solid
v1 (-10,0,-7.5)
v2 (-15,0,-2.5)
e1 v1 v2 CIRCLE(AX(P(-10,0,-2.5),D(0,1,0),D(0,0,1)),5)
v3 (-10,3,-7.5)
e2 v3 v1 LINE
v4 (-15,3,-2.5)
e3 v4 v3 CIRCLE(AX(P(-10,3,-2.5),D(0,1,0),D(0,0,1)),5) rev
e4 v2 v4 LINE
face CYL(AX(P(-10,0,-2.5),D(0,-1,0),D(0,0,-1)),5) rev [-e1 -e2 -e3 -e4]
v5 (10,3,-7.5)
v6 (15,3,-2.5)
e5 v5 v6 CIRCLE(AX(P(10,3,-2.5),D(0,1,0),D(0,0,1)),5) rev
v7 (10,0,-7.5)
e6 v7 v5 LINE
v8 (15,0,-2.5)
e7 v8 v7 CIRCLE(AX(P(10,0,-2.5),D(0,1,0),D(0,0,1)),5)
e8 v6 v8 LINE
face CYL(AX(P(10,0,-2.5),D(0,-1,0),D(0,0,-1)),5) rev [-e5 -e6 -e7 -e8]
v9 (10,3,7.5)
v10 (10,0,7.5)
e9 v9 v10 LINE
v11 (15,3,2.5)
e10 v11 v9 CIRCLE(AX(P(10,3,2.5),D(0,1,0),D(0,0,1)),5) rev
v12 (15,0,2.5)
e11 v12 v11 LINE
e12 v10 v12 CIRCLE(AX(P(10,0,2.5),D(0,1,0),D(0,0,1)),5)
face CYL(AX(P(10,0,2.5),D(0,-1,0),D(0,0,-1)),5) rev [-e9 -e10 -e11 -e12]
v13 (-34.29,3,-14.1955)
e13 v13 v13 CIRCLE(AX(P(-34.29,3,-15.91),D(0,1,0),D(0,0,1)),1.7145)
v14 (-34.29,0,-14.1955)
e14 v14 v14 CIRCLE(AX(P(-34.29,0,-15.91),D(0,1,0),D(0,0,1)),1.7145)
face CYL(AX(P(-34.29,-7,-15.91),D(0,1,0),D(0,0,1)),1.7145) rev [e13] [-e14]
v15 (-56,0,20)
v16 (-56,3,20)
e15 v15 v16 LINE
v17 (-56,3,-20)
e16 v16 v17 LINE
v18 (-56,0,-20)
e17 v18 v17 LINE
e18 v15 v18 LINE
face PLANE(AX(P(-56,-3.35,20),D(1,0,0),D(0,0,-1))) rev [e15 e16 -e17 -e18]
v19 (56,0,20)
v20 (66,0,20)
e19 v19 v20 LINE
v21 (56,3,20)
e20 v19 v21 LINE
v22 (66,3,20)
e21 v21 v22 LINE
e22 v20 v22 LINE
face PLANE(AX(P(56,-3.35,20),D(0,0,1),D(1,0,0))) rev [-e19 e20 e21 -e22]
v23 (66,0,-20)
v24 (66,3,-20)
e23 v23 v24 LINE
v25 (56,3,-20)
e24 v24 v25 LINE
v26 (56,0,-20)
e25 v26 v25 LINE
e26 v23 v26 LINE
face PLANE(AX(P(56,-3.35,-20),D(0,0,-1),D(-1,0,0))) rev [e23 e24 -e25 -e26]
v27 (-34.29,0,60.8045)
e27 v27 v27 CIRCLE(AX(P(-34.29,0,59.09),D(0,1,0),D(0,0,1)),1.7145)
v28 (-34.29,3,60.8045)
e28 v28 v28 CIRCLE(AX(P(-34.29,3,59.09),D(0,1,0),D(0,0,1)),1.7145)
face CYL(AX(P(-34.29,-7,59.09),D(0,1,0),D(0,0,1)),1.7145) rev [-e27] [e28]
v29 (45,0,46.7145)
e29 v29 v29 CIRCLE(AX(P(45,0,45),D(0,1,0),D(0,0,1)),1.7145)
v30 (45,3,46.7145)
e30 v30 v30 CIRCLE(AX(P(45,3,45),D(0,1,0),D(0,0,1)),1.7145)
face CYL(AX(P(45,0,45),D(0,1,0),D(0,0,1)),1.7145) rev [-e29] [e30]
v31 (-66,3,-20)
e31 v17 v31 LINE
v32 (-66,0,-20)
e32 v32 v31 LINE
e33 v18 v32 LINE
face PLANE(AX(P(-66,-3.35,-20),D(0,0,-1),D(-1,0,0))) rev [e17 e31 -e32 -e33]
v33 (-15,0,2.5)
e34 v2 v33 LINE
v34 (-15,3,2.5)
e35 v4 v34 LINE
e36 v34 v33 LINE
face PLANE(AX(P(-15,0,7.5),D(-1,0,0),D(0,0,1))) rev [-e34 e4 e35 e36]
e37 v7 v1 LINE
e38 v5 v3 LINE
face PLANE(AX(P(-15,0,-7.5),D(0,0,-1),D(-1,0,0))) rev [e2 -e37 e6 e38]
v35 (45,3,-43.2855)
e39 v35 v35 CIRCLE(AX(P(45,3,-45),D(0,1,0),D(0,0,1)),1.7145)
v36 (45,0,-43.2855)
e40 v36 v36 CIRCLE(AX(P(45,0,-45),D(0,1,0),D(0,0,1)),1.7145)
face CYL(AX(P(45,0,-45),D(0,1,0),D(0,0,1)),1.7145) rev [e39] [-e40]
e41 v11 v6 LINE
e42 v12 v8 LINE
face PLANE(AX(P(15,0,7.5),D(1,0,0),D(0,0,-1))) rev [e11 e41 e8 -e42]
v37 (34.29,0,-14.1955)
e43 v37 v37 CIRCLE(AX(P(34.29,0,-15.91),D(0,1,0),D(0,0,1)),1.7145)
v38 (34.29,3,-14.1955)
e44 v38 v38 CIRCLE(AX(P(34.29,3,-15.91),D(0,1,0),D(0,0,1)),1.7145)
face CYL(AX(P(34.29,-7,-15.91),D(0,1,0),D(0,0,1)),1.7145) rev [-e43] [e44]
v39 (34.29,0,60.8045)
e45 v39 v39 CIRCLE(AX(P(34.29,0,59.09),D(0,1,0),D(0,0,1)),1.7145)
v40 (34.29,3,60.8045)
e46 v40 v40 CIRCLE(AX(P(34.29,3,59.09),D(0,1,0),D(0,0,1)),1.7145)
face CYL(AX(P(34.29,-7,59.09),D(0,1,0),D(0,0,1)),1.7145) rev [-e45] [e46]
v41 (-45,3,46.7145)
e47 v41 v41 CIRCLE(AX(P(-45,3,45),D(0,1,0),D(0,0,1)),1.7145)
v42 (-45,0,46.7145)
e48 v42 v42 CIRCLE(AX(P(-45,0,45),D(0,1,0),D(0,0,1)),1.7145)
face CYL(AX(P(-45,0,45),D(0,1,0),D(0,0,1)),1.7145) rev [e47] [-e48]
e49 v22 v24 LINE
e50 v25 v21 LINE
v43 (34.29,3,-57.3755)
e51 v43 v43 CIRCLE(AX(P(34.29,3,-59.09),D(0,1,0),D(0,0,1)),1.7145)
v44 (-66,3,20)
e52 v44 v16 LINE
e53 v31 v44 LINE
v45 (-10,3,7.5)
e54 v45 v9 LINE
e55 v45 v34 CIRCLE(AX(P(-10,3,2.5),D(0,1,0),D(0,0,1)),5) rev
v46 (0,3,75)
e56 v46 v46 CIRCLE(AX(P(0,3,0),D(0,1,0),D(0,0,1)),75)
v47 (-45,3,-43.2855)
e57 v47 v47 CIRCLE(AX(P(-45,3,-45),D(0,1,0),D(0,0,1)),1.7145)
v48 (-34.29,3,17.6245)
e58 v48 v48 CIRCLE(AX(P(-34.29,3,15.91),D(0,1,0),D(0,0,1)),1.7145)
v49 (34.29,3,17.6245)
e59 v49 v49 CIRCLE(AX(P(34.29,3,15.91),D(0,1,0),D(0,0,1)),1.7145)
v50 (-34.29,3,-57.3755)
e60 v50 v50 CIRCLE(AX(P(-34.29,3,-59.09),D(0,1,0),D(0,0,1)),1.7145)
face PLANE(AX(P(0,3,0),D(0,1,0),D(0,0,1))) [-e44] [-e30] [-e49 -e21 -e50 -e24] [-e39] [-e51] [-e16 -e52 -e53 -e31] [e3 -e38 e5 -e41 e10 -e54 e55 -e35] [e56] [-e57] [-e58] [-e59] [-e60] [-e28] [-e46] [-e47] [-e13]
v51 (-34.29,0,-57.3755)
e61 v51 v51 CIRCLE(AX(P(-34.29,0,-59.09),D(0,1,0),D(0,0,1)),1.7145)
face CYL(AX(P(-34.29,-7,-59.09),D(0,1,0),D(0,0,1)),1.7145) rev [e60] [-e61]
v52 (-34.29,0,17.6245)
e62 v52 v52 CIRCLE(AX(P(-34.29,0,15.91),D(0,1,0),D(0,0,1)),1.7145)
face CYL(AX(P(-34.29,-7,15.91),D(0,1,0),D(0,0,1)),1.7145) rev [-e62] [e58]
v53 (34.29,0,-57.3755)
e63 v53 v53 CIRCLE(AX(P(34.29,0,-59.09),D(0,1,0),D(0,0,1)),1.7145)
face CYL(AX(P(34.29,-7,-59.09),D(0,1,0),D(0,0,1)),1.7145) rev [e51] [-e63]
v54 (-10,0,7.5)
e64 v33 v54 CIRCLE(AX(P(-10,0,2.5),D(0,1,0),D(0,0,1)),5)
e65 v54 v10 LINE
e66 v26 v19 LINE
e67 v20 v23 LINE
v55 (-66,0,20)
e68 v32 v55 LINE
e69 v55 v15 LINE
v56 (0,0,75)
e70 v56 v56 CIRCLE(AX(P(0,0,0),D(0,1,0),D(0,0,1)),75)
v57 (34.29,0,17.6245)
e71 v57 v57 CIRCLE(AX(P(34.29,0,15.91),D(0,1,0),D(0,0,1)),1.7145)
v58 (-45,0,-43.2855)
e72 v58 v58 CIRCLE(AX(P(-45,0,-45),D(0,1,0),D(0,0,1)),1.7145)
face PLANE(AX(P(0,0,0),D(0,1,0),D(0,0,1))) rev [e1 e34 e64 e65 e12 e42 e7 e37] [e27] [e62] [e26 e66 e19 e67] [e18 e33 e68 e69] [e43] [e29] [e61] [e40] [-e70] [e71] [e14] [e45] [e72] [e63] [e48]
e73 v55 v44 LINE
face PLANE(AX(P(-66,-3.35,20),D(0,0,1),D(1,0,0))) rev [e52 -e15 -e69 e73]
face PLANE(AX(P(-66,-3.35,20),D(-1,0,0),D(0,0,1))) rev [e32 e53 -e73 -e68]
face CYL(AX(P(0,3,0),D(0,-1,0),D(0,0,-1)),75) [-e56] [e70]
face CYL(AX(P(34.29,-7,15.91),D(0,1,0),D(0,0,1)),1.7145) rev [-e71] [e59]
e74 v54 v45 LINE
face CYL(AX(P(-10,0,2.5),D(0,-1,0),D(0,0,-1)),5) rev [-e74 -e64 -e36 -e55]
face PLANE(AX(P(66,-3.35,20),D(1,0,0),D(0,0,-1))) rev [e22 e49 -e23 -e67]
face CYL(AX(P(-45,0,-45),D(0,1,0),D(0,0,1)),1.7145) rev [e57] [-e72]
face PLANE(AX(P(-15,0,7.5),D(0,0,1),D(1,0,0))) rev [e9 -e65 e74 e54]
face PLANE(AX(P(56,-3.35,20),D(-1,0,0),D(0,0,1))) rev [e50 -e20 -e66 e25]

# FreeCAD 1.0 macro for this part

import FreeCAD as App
import Part
import Sketcher


def edges_at(feature, points):
    """Names of the edges that pass closest to the given points."""
    edges = feature.Shape.Edges
    near = lambda p: min(range(len(edges)), key=lambda i: edges[i].distToShape(Part.Vertex(*p))[0])
    return sorted({f"Edge{near(p) + 1}" for p in points})

doc = App.newDocument("Part")
body = doc.addObject("PartDesign::Body", "Body")

sketch1 = body.newObject("Sketcher::SketchObject", "Sketch")
sketch1.AttachmentSupport = (doc.getObject("XZ_Plane"), [""])
sketch1.MapMode = "FlatFace"
sketch1.addGeometry(Part.Circle(App.Vector(0, 0, 0), App.Vector(0, 0, 1), 75), False)
sketch1.addConstraint(Sketcher.Constraint("Coincident", 0, 3, -1, 1))
sketch1.addConstraint(Sketcher.Constraint("Diameter", 0, 150.0))
pad1 = body.newObject("PartDesign::Pad", "Pad")
pad1.Profile = sketch1
pad1.Length = 3
pad1.Reversed = True

sketch2 = body.newObject("Sketcher::SketchObject", "Sketch001")
sketch2.AttachmentSupport = (doc.getObject("XZ_Plane"), [""])
sketch2.MapMode = "FlatFace"
sketch2.AttachmentOffset = App.Placement(App.Vector(0, 0, -3), App.Rotation())
sketch2.addGeometry(Part.LineSegment(App.Vector(-66, -20, 0), App.Vector(-66, 20, 0)), False)
sketch2.addGeometry(Part.LineSegment(App.Vector(-66, 20, 0), App.Vector(-56, 20, 0)), False)
sketch2.addGeometry(Part.LineSegment(App.Vector(-56, 20, 0), App.Vector(-56, -20, 0)), False)
sketch2.addGeometry(Part.LineSegment(App.Vector(-56, -20, 0), App.Vector(-66, -20, 0)), False)
sketch2.addGeometry(Part.LineSegment(App.Vector(56, -20, 0), App.Vector(56, 20, 0)), False)
sketch2.addGeometry(Part.LineSegment(App.Vector(56, 20, 0), App.Vector(66, 20, 0)), False)
sketch2.addGeometry(Part.LineSegment(App.Vector(66, 20, 0), App.Vector(66, -20, 0)), False)
sketch2.addGeometry(Part.LineSegment(App.Vector(66, -20, 0), App.Vector(56, -20, 0)), False)
sketch2.addConstraint(Sketcher.Constraint("Coincident", 0, 2, 1, 1))
sketch2.addConstraint(Sketcher.Constraint("Coincident", 1, 2, 2, 1))
sketch2.addConstraint(Sketcher.Constraint("Coincident", 2, 2, 3, 1))
sketch2.addConstraint(Sketcher.Constraint("Coincident", 3, 2, 0, 1))
sketch2.addConstraint(Sketcher.Constraint("Coincident", 4, 2, 5, 1))
sketch2.addConstraint(Sketcher.Constraint("Coincident", 5, 2, 6, 1))
sketch2.addConstraint(Sketcher.Constraint("Coincident", 6, 2, 7, 1))
sketch2.addConstraint(Sketcher.Constraint("Coincident", 7, 2, 4, 1))
sketch2.addConstraint(Sketcher.Constraint("Vertical", 0))
sketch2.addConstraint(Sketcher.Constraint("Horizontal", 1))
sketch2.addConstraint(Sketcher.Constraint("Vertical", 2))
sketch2.addConstraint(Sketcher.Constraint("Horizontal", 3))
sketch2.addConstraint(Sketcher.Constraint("Vertical", 4))
sketch2.addConstraint(Sketcher.Constraint("Horizontal", 5))
sketch2.addConstraint(Sketcher.Constraint("Vertical", 6))
sketch2.addConstraint(Sketcher.Constraint("Horizontal", 7))
sketch2.addConstraint(Sketcher.Constraint("Symmetric", 2, 2, 4, 2, -1, 1))
sketch2.addConstraint(Sketcher.Constraint("Symmetric", 0, 2, 6, 2, -1, 1))
sketch2.addConstraint(Sketcher.Constraint("Horizontal", 1, 2, 4, 2))
sketch2.addConstraint(Sketcher.Constraint("DistanceX", 1, 1, 1, 2, 10.0))
sketch2.addConstraint(Sketcher.Constraint("DistanceY", 0, 1, 0, 2, 40.0))
sketch2.addConstraint(Sketcher.Constraint("DistanceX", 0, 2, -1, 1, 66.0))
pocket1 = body.newObject("PartDesign::Pocket", "Pocket")
pocket1.Profile = sketch2
pocket1.Length = 6.35
pocket1.Reversed = True

sketch3 = body.newObject("Sketcher::SketchObject", "Sketch002")
sketch3.AttachmentSupport = (doc.getObject("XZ_Plane"), [""])
sketch3.MapMode = "FlatFace"
sketch3.AttachmentOffset = App.Placement(App.Vector(0, 0, -3), App.Rotation())
sketch3.addGeometry(Part.Circle(App.Vector(-45, -45, 0), App.Vector(0, 0, 1), 1.7145), False)
sketch3.addGeometry(Part.Circle(App.Vector(45, -45, 0), App.Vector(0, 0, 1), 1.7145), False)
sketch3.addGeometry(Part.Circle(App.Vector(45, 45, 0), App.Vector(0, 0, 1), 1.7145), False)
sketch3.addGeometry(Part.Circle(App.Vector(-45, 45, 0), App.Vector(0, 0, 1), 1.7145), False)
sketch3.addConstraint(Sketcher.Constraint("Equal", 0, 1))
sketch3.addConstraint(Sketcher.Constraint("Equal", 1, 2))
sketch3.addConstraint(Sketcher.Constraint("Equal", 2, 3))
sketch3.addConstraint(Sketcher.Constraint("Symmetric", 0, 3, 2, 3, -1, 1))
sketch3.addConstraint(Sketcher.Constraint("Symmetric", 1, 3, 3, 3, -1, 1))
sketch3.addConstraint(Sketcher.Constraint("Symmetric", 0, 3, 1, 3, -2))
sketch3.addConstraint(Sketcher.Constraint("Diameter", 0, 3.429))
sketch3.addConstraint(Sketcher.Constraint("DistanceX", 0, 3, -1, 1, 45.0))
sketch3.addConstraint(Sketcher.Constraint("DistanceY", 0, 3, -1, 1, 45.0))
pocket2 = body.newObject("PartDesign::Pocket", "Pocket001")
pocket2.Profile = sketch3
pocket2.Type = "ThroughAll"
pocket2.Reversed = True

sketch4 = body.newObject("Sketcher::SketchObject", "Sketch003")
sketch4.AttachmentSupport = (doc.getObject("XZ_Plane"), [""])
sketch4.MapMode = "FlatFace"
sketch4.AttachmentOffset = App.Placement(App.Vector(0, 0, -3), App.Rotation())
sketch4.addGeometry(Part.LineSegment(App.Vector(-15, -7.5, 0), App.Vector(-15, 7.5, 0)), False)
sketch4.addGeometry(Part.LineSegment(App.Vector(-15, 7.5, 0), App.Vector(15, 7.5, 0)), False)
sketch4.addGeometry(Part.LineSegment(App.Vector(15, 7.5, 0), App.Vector(15, -7.5, 0)), False)
sketch4.addGeometry(Part.LineSegment(App.Vector(15, -7.5, 0), App.Vector(-15, -7.5, 0)), False)
sketch4.addConstraint(Sketcher.Constraint("Coincident", 0, 2, 1, 1))
sketch4.addConstraint(Sketcher.Constraint("Coincident", 1, 2, 2, 1))
sketch4.addConstraint(Sketcher.Constraint("Coincident", 2, 2, 3, 1))
sketch4.addConstraint(Sketcher.Constraint("Coincident", 3, 2, 0, 1))
sketch4.addConstraint(Sketcher.Constraint("Vertical", 0))
sketch4.addConstraint(Sketcher.Constraint("Horizontal", 1))
sketch4.addConstraint(Sketcher.Constraint("Vertical", 2))
sketch4.addConstraint(Sketcher.Constraint("Horizontal", 3))
sketch4.addConstraint(Sketcher.Constraint("Symmetric", 0, 2, 2, 2, -1, 1))
sketch4.addConstraint(Sketcher.Constraint("DistanceX", 1, 1, 1, 2, 30.0))
sketch4.addConstraint(Sketcher.Constraint("DistanceY", 0, 1, 0, 2, 15.0))
pocket3 = body.newObject("PartDesign::Pocket", "Pocket002")
pocket3.Profile = sketch4
pocket3.Type = "ThroughAll"
pocket3.Reversed = True
doc.recompute()

fillet = body.newObject("PartDesign::Fillet", "Fillet")
fillet.Base = (pocket3, edges_at(pocket3, [
    (15, 1.5, -7.5),
    (15, 1.5, 7.5),
    (-15, 1.5, 7.5),
    (-15, 1.5, -7.5),
]))
fillet.Radius = 5

sketch5 = body.newObject("Sketcher::SketchObject", "Sketch004")
sketch5.AttachmentSupport = (doc.getObject("XZ_Plane"), [""])
sketch5.MapMode = "FlatFace"
sketch5.AttachmentOffset = App.Placement(App.Vector(0, 0, -3), App.Rotation())
sketch5.addGeometry(Part.Circle(App.Vector(34.29, -59.09, 0), App.Vector(0, 0, 1), 1.7145), False)
sketch5.addGeometry(Part.Circle(App.Vector(34.29, -15.91, 0), App.Vector(0, 0, 1), 1.7145), False)
sketch5.addGeometry(Part.Circle(App.Vector(-34.29, -15.91, 0), App.Vector(0, 0, 1), 1.7145), False)
sketch5.addGeometry(Part.Circle(App.Vector(-34.29, -59.09, 0), App.Vector(0, 0, 1), 1.7145), False)
sketch5.addGeometry(Part.Circle(App.Vector(-34.29, 15.91, 0), App.Vector(0, 0, 1), 1.7145), False)
sketch5.addGeometry(Part.Circle(App.Vector(-34.29, 59.09, 0), App.Vector(0, 0, 1), 1.7145), False)
sketch5.addGeometry(Part.Circle(App.Vector(34.29, 59.09, 0), App.Vector(0, 0, 1), 1.7145), False)
sketch5.addGeometry(Part.Circle(App.Vector(34.29, 15.91, 0), App.Vector(0, 0, 1), 1.7145), False)
sketch5.addConstraint(Sketcher.Constraint("Equal", 0, 1))
sketch5.addConstraint(Sketcher.Constraint("Equal", 1, 2))
sketch5.addConstraint(Sketcher.Constraint("Equal", 2, 3))
sketch5.addConstraint(Sketcher.Constraint("Equal", 3, 4))
sketch5.addConstraint(Sketcher.Constraint("Equal", 4, 5))
sketch5.addConstraint(Sketcher.Constraint("Equal", 5, 6))
sketch5.addConstraint(Sketcher.Constraint("Equal", 6, 7))
sketch5.addConstraint(Sketcher.Constraint("Symmetric", 1, 3, 4, 3, -1, 1))
sketch5.addConstraint(Sketcher.Constraint("Symmetric", 0, 3, 5, 3, -1, 1))
sketch5.addConstraint(Sketcher.Constraint("Symmetric", 3, 3, 6, 3, -1, 1))
sketch5.addConstraint(Sketcher.Constraint("Symmetric", 2, 3, 7, 3, -1, 1))
sketch5.addConstraint(Sketcher.Constraint("Symmetric", 1, 3, 2, 3, -2))
sketch5.addConstraint(Sketcher.Constraint("Symmetric", 0, 3, 3, 3, -2))
sketch5.addConstraint(Sketcher.Constraint("Vertical", 0, 3, 1, 3))
sketch5.addConstraint(Sketcher.Constraint("Diameter", 0, 3.429))
sketch5.addConstraint(Sketcher.Constraint("DistanceY", 3, 3, 4, 3, 75.0))
sketch5.addConstraint(Sketcher.Constraint("DistanceX", -1, 1, 0, 3, 34.29))
sketch5.addConstraint(Sketcher.Constraint("DistanceY", 0, 3, -1, 1, 59.09))
pocket4 = body.newObject("PartDesign::Pocket", "Pocket003")
pocket4.Profile = sketch5
pocket4.Length = 10
pocket4.Reversed = True

doc.recompute()
